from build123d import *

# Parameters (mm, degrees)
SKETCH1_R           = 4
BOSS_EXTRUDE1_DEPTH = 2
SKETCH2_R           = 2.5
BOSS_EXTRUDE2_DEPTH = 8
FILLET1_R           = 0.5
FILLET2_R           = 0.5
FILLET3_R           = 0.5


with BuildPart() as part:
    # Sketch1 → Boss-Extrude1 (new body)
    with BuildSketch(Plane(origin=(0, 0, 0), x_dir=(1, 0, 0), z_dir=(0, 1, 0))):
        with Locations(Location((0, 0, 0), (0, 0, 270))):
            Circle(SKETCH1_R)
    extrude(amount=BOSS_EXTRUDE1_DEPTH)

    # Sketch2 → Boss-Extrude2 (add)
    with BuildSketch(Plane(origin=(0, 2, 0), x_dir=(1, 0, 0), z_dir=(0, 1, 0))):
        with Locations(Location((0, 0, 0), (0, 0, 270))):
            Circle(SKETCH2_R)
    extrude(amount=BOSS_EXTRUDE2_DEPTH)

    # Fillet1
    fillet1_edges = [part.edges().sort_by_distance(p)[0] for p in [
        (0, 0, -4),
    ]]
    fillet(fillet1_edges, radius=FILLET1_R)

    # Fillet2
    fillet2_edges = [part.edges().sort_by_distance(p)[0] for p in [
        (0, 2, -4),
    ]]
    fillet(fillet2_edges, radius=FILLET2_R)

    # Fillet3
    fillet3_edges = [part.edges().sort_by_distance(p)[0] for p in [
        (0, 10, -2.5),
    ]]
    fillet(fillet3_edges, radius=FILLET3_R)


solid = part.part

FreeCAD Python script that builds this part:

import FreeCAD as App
import Part
import Sketcher

V = App.Vector
Q = App.Units.Quantity


def edges_at(feature, points):
    """Names of the edges that pass closest to the given points."""
    edges = feature.Shape.Edges
    near = lambda p: min(range(len(edges)), key=lambda i: edges[i].distToShape(Part.Vertex(*p))[0])
    return sorted({f"Edge{near(p) + 1}" for p in points})

doc = App.newDocument("Part")
params = doc.addObject("Spreadsheet::Sheet", "Params")
for row, (alias, value) in enumerate([
    ("sketch1_diameter", "8 mm"),
    ("pad1_length", "2 mm"),
    ("sketch2_diameter", "5 mm"),
    ("pad2_length", "8 mm"),
    ("fillet_radius", "0.5 mm"),
    ("fillet2_radius", "0.5 mm"),
    ("fillet3_radius", "0.5 mm"),
], start=1):
    params.set(f"A{row}", alias)
    params.set(f"B{row}", "=" + value)
    params.setAlias(f"B{row}", alias)

body = doc.addObject("PartDesign::Body", "Body")

sketch1 = body.newObject("Sketcher::SketchObject", "Sketch")
sketch1.AttachmentSupport = (doc.getObject("XZ_Plane"), [""])
sketch1.MapMode = "FlatFace"
sketch1.addGeometry(Part.Circle(V(0, 0, 0), V(0, 0, 1), 4), False)
sketch1.addConstraint([
    Sketcher.Constraint("Coincident", 0, 3, -1, 1),
    Sketcher.Constraint("Diameter", 0, Q("8 mm")),
])
sketch1.setExpression("Constraints[1]", "Params.sketch1_diameter")
pad1 = body.newObject("PartDesign::Pad", "Pad")
pad1.Profile = sketch1
pad1.setExpression("Length", "Params.pad1_length")
pad1.Reversed = True

sketch2 = body.newObject("Sketcher::SketchObject", "Sketch001")
sketch2.AttachmentSupport = (doc.getObject("XZ_Plane"), [""])
sketch2.MapMode = "FlatFace"
sketch2.AttachmentOffset = App.Placement(V(0, 0, -2), App.Rotation())
sketch2.addGeometry(Part.Circle(V(0, 0, 0), V(0, 0, 1), 2.5), False)
sketch2.addConstraint([
    Sketcher.Constraint("Coincident", 0, 3, -1, 1),
    Sketcher.Constraint("Diameter", 0, Q("5 mm")),
])
sketch2.setExpression("Constraints[1]", "Params.sketch2_diameter")
pad2 = body.newObject("PartDesign::Pad", "Pad001")
pad2.Profile = sketch2
pad2.setExpression("Length", "Params.pad2_length")
pad2.Reversed = True
doc.recompute()

fillet = body.newObject("PartDesign::Fillet", "Fillet")
fillet.Base = (pad2, edges_at(pad2, [(0, 0, -4)]))
fillet.setExpression("Radius", "Params.fillet_radius")
doc.recompute()

fillet2 = body.newObject("PartDesign::Fillet", "Fillet001")
fillet2.Base = (fillet, edges_at(fillet, [(0, 2, -4)]))
fillet2.setExpression("Radius", "Params.fillet2_radius")
doc.recompute()

fillet3 = body.newObject("PartDesign::Fillet", "Fillet002")
fillet3.Base = (fillet2, edges_at(fillet2, [(0, 10, -2.5)]))
fillet3.setExpression("Radius", "Params.fillet3_radius")

doc.recompute()
